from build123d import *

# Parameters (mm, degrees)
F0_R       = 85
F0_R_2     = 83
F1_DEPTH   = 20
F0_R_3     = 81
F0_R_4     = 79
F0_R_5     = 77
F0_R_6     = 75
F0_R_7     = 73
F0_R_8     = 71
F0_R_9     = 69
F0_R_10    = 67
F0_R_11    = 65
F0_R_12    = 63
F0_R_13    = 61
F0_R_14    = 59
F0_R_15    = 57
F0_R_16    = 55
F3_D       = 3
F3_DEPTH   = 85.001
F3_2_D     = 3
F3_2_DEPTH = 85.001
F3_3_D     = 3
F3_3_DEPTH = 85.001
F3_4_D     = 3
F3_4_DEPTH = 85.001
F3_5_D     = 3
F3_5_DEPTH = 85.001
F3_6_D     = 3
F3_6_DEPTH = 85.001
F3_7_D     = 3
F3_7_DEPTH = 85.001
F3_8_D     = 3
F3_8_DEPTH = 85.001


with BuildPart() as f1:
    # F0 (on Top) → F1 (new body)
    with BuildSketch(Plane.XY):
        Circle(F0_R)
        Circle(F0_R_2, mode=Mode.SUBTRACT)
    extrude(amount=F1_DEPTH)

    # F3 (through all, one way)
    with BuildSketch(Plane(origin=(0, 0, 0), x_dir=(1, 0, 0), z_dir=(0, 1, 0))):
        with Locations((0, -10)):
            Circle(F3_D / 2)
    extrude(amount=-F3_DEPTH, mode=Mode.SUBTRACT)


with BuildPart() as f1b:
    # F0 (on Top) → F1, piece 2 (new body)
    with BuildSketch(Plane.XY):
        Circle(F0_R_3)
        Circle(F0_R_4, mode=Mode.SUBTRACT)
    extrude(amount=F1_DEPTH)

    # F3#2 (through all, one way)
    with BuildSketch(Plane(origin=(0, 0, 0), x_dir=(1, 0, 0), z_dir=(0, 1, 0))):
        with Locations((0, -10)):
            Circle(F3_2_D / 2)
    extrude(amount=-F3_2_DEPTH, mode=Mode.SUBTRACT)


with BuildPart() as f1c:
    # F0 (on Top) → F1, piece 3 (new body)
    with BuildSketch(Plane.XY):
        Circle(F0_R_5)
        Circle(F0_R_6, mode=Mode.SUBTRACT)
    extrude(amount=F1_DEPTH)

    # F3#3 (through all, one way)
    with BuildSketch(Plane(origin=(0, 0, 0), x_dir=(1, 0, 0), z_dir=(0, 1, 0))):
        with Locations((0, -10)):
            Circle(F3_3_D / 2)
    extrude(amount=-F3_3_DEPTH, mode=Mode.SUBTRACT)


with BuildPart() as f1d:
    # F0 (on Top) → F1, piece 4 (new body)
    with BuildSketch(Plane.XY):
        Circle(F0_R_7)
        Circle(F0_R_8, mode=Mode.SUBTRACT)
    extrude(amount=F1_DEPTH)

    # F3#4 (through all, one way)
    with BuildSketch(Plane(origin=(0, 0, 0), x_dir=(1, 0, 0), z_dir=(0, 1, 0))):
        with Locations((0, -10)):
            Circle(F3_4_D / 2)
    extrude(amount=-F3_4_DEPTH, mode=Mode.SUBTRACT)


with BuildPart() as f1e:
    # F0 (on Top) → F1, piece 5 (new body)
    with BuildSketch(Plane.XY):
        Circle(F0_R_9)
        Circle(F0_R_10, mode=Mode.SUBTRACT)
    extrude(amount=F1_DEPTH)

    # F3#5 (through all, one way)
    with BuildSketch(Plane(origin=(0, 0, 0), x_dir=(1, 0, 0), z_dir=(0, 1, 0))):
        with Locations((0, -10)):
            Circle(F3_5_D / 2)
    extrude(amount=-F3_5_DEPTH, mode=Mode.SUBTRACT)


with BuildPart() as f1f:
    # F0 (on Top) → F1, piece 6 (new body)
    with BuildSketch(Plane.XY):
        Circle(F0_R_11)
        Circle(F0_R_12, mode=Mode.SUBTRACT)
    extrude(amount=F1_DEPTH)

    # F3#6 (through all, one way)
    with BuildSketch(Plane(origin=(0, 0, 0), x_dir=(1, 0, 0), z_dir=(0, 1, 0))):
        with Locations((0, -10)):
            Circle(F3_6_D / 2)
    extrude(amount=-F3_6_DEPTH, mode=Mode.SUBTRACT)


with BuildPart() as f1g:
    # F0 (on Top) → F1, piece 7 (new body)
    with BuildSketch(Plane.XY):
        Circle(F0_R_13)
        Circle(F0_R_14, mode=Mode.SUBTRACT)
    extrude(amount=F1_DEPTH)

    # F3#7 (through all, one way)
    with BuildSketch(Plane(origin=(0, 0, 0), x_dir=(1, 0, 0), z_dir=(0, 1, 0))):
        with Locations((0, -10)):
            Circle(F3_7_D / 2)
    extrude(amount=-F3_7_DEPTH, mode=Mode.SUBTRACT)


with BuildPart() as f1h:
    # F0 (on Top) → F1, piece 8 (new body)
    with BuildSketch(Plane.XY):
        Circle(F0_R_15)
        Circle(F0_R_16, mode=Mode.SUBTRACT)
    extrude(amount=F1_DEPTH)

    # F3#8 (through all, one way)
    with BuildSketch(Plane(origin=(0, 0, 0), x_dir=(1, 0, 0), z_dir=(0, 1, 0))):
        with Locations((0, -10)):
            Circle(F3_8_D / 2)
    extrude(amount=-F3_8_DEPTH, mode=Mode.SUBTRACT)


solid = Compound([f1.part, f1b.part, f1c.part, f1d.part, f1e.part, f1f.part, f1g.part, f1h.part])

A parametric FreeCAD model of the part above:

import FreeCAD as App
import Part
import Sketcher
from FreeCAD import Vector

doc = App.newDocument("Part")
body = doc.addObject("PartDesign::Body", "Body")

sketch1 = doc.addObject("Sketcher::SketchObject", "Sketch")
body.addObject(sketch1)
sketch1.AttachmentSupport = (doc.XY_Plane, [""])
sketch1.MapMode = "FlatFace"
sketch1.addGeometry(Part.Circle(Vector(0, 0, 0), Vector(0, 0, 1), 85), False)
sketch1.addGeometry(Part.Circle(Vector(0, 0, 0), Vector(0, 0, 1), 83), False)
sketch1.addConstraint(Sketcher.Constraint("Coincident", 0, 3, -1, 1))
sketch1.addConstraint(Sketcher.Constraint("Coincident", 1, 3, -1, 1))
sketch1.addConstraint(Sketcher.Constraint("Diameter", 0, 170.0))
sketch1.addConstraint(Sketcher.Constraint("Diameter", 1, 166.0))
pad1 = doc.addObject("PartDesign::Pad", "Pad")
body.addObject(pad1)
pad1.Profile = sketch1
pad1.Length = 20

sketch2 = doc.addObject("Sketcher::SketchObject", "Sketch001")
body.addObject(sketch2)
sketch2.AttachmentSupport = (doc.XZ_Plane, [""])
sketch2.MapMode = "FlatFace"
sketch2.addGeometry(Part.Circle(Vector(0, 10, 0), Vector(0, 0, 1), 1.5), False)
sketch2.addConstraint(Sketcher.Constraint("PointOnObject", 0, 3, -2))
sketch2.addConstraint(Sketcher.Constraint("Diameter", 0, 3.0))
sketch2.addConstraint(Sketcher.Constraint("DistanceY", -1, 1, 0, 3, 10.0))
pocket1 = doc.addObject("PartDesign::Pocket", "Pocket")
body.addObject(pocket1)
pocket1.Profile = sketch2
pocket1.Type = "ThroughAll"
pocket1.Reversed = True
body2 = doc.addObject("PartDesign::Body", "Body001")

sketch3 = doc.addObject("Sketcher::SketchObject", "Sketch002")
body2.addObject(sketch3)
sketch3.AttachmentSupport = (doc.getObject("XY_Plane001"), [""])
sketch3.MapMode = "FlatFace"
sketch3.addGeometry(Part.Circle(Vector(0, 0, 0), Vector(0, 0, 1), 81), False)
sketch3.addGeometry(Part.Circle(Vector(0, 0, 0), Vector(0, 0, 1), 79), False)
sketch3.addConstraint(Sketcher.Constraint("Coincident", 0, 3, -1, 1))
sketch3.addConstraint(Sketcher.Constraint("Coincident", 1, 3, -1, 1))
sketch3.addConstraint(Sketcher.Constraint("Diameter", 0, 162.0))
sketch3.addConstraint(Sketcher.Constraint("Diameter", 1, 158.0))
pad2 = doc.addObject("PartDesign::Pad", "Pad001")
body2.addObject(pad2)
pad2.Profile = sketch3
pad2.Length = 20

sketch4 = doc.addObject("Sketcher::SketchObject", "Sketch003")
body2.addObject(sketch4)
sketch4.AttachmentSupport = (doc.getObject("XZ_Plane001"), [""])
sketch4.MapMode = "FlatFace"
sketch4.addGeometry(Part.Circle(Vector(0, 10, 0), Vector(0, 0, 1), 1.5), False)
sketch4.addConstraint(Sketcher.Constraint("PointOnObject", 0, 3, -2))
sketch4.addConstraint(Sketcher.Constraint("Diameter", 0, 3.0))
sketch4.addConstraint(Sketcher.Constraint("DistanceY", -1, 1, 0, 3, 10.0))
pocket2 = doc.addObject("PartDesign::Pocket", "Pocket001")
body2.addObject(pocket2)
pocket2.Profile = sketch4
pocket2.Type = "ThroughAll"
pocket2.Reversed = True
body3 = doc.addObject("PartDesign::Body", "Body002")

sketch5 = doc.addObject("Sketcher::SketchObject", "Sketch004")
body3.addObject(sketch5)
sketch5.AttachmentSupport = (doc.getObject("XY_Plane002"), [""])
sketch5.MapMode = "FlatFace"
sketch5.addGeometry(Part.Circle(Vector(0, 0, 0), Vector(0, 0, 1), 77), False)
sketch5.addGeometry(Part.Circle(Vector(0, 0, 0), Vector(0, 0, 1), 75), False)
sketch5.addConstraint(Sketcher.Constraint("Coincident", 0, 3, -1, 1))
sketch5.addConstraint(Sketcher.Constraint("Coincident", 1, 3, -1, 1))
sketch5.addConstraint(Sketcher.Constraint("Diameter", 0, 154.0))
sketch5.addConstraint(Sketcher.Constraint("Diameter", 1, 150.0))
pad3 = doc.addObject("PartDesign::Pad", "Pad002")
body3.addObject(pad3)
pad3.Profile = sketch5
pad3.Length = 20

sketch6 = doc.addObject("Sketcher::SketchObject", "Sketch005")
body3.addObject(sketch6)
sketch6.AttachmentSupport = (doc.getObject("XZ_Plane002"), [""])
sketch6.MapMode = "FlatFace"
sketch6.addGeometry(Part.Circle(Vector(0, 10, 0), Vector(0, 0, 1), 1.5), False)
sketch6.addConstraint(Sketcher.Constraint("PointOnObject", 0, 3, -2))
sketch6.addConstraint(Sketcher.Constraint("Diameter", 0, 3.0))
sketch6.addConstraint(Sketcher.Constraint("DistanceY", -1, 1, 0, 3, 10.0))
pocket3 = doc.addObject("PartDesign::Pocket", "Pocket002")
body3.addObject(pocket3)
pocket3.Profile = sketch6
pocket3.Type = "ThroughAll"
pocket3.Reversed = True
body4 = doc.addObject("PartDesign::Body", "Body003")

sketch7 = doc.addObject("Sketcher::SketchObject", "Sketch006")
body4.addObject(sketch7)
sketch7.AttachmentSupport = (doc.getObject("XY_Plane003"), [""])
sketch7.MapMode = "FlatFace"
sketch7.addGeometry(Part.Circle(Vector(0, 0, 0), Vector(0, 0, 1), 73), False)
sketch7.addGeometry(Part.Circle(Vector(0, 0, 0), Vector(0, 0, 1), 71), False)
sketch7.addConstraint(Sketcher.Constraint("Coincident", 0, 3, -1, 1))
sketch7.addConstraint(Sketcher.Constraint("Coincident", 1, 3, -1, 1))
sketch7.addConstraint(Sketcher.Constraint("Diameter", 0, 146.0))
sketch7.addConstraint(Sketcher.Constraint("Diameter", 1, 142.0))
pad4 = doc.addObject("PartDesign::Pad", "Pad003")
body4.addObject(pad4)
pad4.Profile = sketch7
pad4.Length = 20

sketch8 = doc.addObject("Sketcher::SketchObject", "Sketch007")
body4.addObject(sketch8)
sketch8.AttachmentSupport = (doc.getObject("XZ_Plane003"), [""])
sketch8.MapMode = "FlatFace"
sketch8.addGeometry(Part.Circle(Vector(0, 10, 0), Vector(0, 0, 1), 1.5), False)
sketch8.addConstraint(Sketcher.Constraint("PointOnObject", 0, 3, -2))
sketch8.addConstraint(Sketcher.Constraint("Diameter", 0, 3.0))
sketch8.addConstraint(Sketcher.Constraint("DistanceY", -1, 1, 0, 3, 10.0))
pocket4 = doc.addObject("PartDesign::Pocket", "Pocket003")
body4.addObject(pocket4)
pocket4.Profile = sketch8
pocket4.Type = "ThroughAll"
pocket4.Reversed = True
body5 = doc.addObject("PartDesign::Body", "Body004")

sketch9 = doc.addObject("Sketcher::SketchObject", "Sketch008")
body5.addObject(sketch9)
sketch9.AttachmentSupport = (doc.getObject("XY_Plane004"), [""])
sketch9.MapMode = "FlatFace"
sketch9.addGeometry(Part.Circle(Vector(0, 0, 0), Vector(0, 0, 1), 69), False)
sketch9.addGeometry(Part.Circle(Vector(0, 0, 0), Vector(0, 0, 1), 67), False)
sketch9.addConstraint(Sketcher.Constraint("Coincident", 0, 3, -1, 1))
sketch9.addConstraint(Sketcher.Constraint("Coincident", 1, 3, -1, 1))
sketch9.addConstraint(Sketcher.Constraint("Diameter", 0, 138.0))
sketch9.addConstraint(Sketcher.Constraint("Diameter", 1, 134.0))
pad5 = doc.addObject("PartDesign::Pad", "Pad004")
body5.addObject(pad5)
pad5.Profile = sketch9
pad5.Length = 20

sketch10 = doc.addObject("Sketcher::SketchObject", "Sketch009")
body5.addObject(sketch10)
sketch10.AttachmentSupport = (doc.getObject("XZ_Plane004"), [""])
sketch10.MapMode = "FlatFace"
sketch10.addGeometry(Part.Circle(Vector(0, 10, 0), Vector(0, 0, 1), 1.5), False)
sketch10.addConstraint(Sketcher.Constraint("PointOnObject", 0, 3, -2))
sketch10.addConstraint(Sketcher.Constraint("Diameter", 0, 3.0))
sketch10.addConstraint(Sketcher.Constraint("DistanceY", -1, 1, 0, 3, 10.0))
pocket5 = doc.addObject("PartDesign::Pocket", "Pocket004")
body5.addObject(pocket5)
pocket5.Profile = sketch10
pocket5.Type = "ThroughAll"
pocket5.Reversed = True
body6 = doc.addObject("PartDesign::Body", "Body005")

sketch11 = doc.addObject("Sketcher::SketchObject", "Sketch010")
body6.addObject(sketch11)
sketch11.AttachmentSupport = (doc.getObject("XY_Plane005"), [""])
sketch11.MapMode = "FlatFace"
sketch11.addGeometry(Part.Circle(Vector(0, 0, 0), Vector(0, 0, 1), 65), False)
sketch11.addGeometry(Part.Circle(Vector(0, 0, 0), Vector(0, 0, 1), 63), False)
sketch11.addConstraint(Sketcher.Constraint("Coincident", 0, 3, -1, 1))
sketch11.addConstraint(Sketcher.Constraint("Coincident", 1, 3, -1, 1))
sketch11.addConstraint(Sketcher.Constraint("Diameter", 0, 130.0))
sketch11.addConstraint(Sketcher.Constraint("Diameter", 1, 126.0))
pad6 = doc.addObject("PartDesign::Pad", "Pad005")
body6.addObject(pad6)
pad6.Profile = sketch11
pad6.Length = 20

sketch12 = doc.addObject("Sketcher::SketchObject", "Sketch011")
body6.addObject(sketch12)
sketch12.AttachmentSupport = (doc.getObject("XZ_Plane005"), [""])
sketch12.MapMode = "FlatFace"
sketch12.addGeometry(Part.Circle(Vector(0, 10, 0), Vector(0, 0, 1), 1.5), False)
sketch12.addConstraint(Sketcher.Constraint("PointOnObject", 0, 3, -2))
sketch12.addConstraint(Sketcher.Constraint("Diameter", 0, 3.0))
sketch12.addConstraint(Sketcher.Constraint("DistanceY", -1, 1, 0, 3, 10.0))
pocket6 = doc.addObject("PartDesign::Pocket", "Pocket005")
body6.addObject(pocket6)
pocket6.Profile = sketch12
pocket6.Type = "ThroughAll"
pocket6.Reversed = True
body7 = doc.addObject("PartDesign::Body", "Body006")

sketch13 = doc.addObject("Sketcher::SketchObject", "Sketch012")
body7.addObject(sketch13)
sketch13.AttachmentSupport = (doc.getObject("XY_Plane006"), [""])
sketch13.MapMode = "FlatFace"
sketch13.addGeometry(Part.Circle(Vector(0, 0, 0), Vector(0, 0, 1), 61), False)
sketch13.addGeometry(Part.Circle(Vector(0, 0, 0), Vector(0, 0, 1), 59), False)
sketch13.addConstraint(Sketcher.Constraint("Coincident", 0, 3, -1, 1))
sketch13.addConstraint(Sketcher.Constraint("Coincident", 1, 3, -1, 1))
sketch13.addConstraint(Sketcher.Constraint("Diameter", 0, 122.0))
sketch13.addConstraint(Sketcher.Constraint("Diameter", 1, 118.0))
pad7 = doc.addObject("PartDesign::Pad", "Pad006")
body7.addObject(pad7)
pad7.Profile = sketch13
pad7.Length = 20

sketch14 = doc.addObject("Sketcher::SketchObject", "Sketch013")
body7.addObject(sketch14)
sketch14.AttachmentSupport = (doc.getObject("XZ_Plane006"), [""])
sketch14.MapMode = "FlatFace"
sketch14.addGeometry(Part.Circle(Vector(0, 10, 0), Vector(0, 0, 1), 1.5), False)
sketch14.addConstraint(Sketcher.Constraint("PointOnObject", 0, 3, -2))
sketch14.addConstraint(Sketcher.Constraint("Diameter", 0, 3.0))
sketch14.addConstraint(Sketcher.Constraint("DistanceY", -1, 1, 0, 3, 10.0))
pocket7 = doc.addObject("PartDesign::Pocket", "Pocket006")
body7.addObject(pocket7)
pocket7.Profile = sketch14
pocket7.Type = "ThroughAll"
pocket7.Reversed = True
body8 = doc.addObject("PartDesign::Body", "Body007")

sketch15 = doc.addObject("Sketcher::SketchObject", "Sketch014")
body8.addObject(sketch15)
sketch15.AttachmentSupport = (doc.getObject("XY_Plane007"), [""])
sketch15.MapMode = "FlatFace"
sketch15.addGeometry(Part.Circle(Vector(0, 0, 0), Vector(0, 0, 1), 57), False)
sketch15.addGeometry(Part.Circle(Vector(0, 0, 0), Vector(0, 0, 1), 55), False)
sketch15.addConstraint(Sketcher.Constraint("Coincident", 0, 3, -1, 1))
sketch15.addConstraint(Sketcher.Constraint("Coincident", 1, 3, -1, 1))
sketch15.addConstraint(Sketcher.Constraint("Diameter", 0, 114.0))
sketch15.addConstraint(Sketcher.Constraint("Diameter", 1, 110.0))
pad8 = doc.addObject("PartDesign::Pad", "Pad007")
body8.addObject(pad8)
pad8.Profile = sketch15
pad8.Length = 20

sketch16 = doc.addObject("Sketcher::SketchObject", "Sketch015")
body8.addObject(sketch16)
sketch16.AttachmentSupport = (doc.getObject("XZ_Plane007"), [""])
sketch16.MapMode = "FlatFace"
sketch16.addGeometry(Part.Circle(Vector(0, 10, 0), Vector(0, 0, 1), 1.5), False)
sketch16.addConstraint(Sketcher.Constraint("PointOnObject", 0, 3, -2))
sketch16.addConstraint(Sketcher.Constraint("Diameter", 0, 3.0))
sketch16.addConstraint(Sketcher.Constraint("DistanceY", -1, 1, 0, 3, 10.0))
pocket8 = doc.addObject("PartDesign::Pocket", "Pocket007")
body8.addObject(pocket8)
pocket8.Profile = sketch16
pocket8.Type = "ThroughAll"
pocket8.Reversed = True

doc.recompute()
